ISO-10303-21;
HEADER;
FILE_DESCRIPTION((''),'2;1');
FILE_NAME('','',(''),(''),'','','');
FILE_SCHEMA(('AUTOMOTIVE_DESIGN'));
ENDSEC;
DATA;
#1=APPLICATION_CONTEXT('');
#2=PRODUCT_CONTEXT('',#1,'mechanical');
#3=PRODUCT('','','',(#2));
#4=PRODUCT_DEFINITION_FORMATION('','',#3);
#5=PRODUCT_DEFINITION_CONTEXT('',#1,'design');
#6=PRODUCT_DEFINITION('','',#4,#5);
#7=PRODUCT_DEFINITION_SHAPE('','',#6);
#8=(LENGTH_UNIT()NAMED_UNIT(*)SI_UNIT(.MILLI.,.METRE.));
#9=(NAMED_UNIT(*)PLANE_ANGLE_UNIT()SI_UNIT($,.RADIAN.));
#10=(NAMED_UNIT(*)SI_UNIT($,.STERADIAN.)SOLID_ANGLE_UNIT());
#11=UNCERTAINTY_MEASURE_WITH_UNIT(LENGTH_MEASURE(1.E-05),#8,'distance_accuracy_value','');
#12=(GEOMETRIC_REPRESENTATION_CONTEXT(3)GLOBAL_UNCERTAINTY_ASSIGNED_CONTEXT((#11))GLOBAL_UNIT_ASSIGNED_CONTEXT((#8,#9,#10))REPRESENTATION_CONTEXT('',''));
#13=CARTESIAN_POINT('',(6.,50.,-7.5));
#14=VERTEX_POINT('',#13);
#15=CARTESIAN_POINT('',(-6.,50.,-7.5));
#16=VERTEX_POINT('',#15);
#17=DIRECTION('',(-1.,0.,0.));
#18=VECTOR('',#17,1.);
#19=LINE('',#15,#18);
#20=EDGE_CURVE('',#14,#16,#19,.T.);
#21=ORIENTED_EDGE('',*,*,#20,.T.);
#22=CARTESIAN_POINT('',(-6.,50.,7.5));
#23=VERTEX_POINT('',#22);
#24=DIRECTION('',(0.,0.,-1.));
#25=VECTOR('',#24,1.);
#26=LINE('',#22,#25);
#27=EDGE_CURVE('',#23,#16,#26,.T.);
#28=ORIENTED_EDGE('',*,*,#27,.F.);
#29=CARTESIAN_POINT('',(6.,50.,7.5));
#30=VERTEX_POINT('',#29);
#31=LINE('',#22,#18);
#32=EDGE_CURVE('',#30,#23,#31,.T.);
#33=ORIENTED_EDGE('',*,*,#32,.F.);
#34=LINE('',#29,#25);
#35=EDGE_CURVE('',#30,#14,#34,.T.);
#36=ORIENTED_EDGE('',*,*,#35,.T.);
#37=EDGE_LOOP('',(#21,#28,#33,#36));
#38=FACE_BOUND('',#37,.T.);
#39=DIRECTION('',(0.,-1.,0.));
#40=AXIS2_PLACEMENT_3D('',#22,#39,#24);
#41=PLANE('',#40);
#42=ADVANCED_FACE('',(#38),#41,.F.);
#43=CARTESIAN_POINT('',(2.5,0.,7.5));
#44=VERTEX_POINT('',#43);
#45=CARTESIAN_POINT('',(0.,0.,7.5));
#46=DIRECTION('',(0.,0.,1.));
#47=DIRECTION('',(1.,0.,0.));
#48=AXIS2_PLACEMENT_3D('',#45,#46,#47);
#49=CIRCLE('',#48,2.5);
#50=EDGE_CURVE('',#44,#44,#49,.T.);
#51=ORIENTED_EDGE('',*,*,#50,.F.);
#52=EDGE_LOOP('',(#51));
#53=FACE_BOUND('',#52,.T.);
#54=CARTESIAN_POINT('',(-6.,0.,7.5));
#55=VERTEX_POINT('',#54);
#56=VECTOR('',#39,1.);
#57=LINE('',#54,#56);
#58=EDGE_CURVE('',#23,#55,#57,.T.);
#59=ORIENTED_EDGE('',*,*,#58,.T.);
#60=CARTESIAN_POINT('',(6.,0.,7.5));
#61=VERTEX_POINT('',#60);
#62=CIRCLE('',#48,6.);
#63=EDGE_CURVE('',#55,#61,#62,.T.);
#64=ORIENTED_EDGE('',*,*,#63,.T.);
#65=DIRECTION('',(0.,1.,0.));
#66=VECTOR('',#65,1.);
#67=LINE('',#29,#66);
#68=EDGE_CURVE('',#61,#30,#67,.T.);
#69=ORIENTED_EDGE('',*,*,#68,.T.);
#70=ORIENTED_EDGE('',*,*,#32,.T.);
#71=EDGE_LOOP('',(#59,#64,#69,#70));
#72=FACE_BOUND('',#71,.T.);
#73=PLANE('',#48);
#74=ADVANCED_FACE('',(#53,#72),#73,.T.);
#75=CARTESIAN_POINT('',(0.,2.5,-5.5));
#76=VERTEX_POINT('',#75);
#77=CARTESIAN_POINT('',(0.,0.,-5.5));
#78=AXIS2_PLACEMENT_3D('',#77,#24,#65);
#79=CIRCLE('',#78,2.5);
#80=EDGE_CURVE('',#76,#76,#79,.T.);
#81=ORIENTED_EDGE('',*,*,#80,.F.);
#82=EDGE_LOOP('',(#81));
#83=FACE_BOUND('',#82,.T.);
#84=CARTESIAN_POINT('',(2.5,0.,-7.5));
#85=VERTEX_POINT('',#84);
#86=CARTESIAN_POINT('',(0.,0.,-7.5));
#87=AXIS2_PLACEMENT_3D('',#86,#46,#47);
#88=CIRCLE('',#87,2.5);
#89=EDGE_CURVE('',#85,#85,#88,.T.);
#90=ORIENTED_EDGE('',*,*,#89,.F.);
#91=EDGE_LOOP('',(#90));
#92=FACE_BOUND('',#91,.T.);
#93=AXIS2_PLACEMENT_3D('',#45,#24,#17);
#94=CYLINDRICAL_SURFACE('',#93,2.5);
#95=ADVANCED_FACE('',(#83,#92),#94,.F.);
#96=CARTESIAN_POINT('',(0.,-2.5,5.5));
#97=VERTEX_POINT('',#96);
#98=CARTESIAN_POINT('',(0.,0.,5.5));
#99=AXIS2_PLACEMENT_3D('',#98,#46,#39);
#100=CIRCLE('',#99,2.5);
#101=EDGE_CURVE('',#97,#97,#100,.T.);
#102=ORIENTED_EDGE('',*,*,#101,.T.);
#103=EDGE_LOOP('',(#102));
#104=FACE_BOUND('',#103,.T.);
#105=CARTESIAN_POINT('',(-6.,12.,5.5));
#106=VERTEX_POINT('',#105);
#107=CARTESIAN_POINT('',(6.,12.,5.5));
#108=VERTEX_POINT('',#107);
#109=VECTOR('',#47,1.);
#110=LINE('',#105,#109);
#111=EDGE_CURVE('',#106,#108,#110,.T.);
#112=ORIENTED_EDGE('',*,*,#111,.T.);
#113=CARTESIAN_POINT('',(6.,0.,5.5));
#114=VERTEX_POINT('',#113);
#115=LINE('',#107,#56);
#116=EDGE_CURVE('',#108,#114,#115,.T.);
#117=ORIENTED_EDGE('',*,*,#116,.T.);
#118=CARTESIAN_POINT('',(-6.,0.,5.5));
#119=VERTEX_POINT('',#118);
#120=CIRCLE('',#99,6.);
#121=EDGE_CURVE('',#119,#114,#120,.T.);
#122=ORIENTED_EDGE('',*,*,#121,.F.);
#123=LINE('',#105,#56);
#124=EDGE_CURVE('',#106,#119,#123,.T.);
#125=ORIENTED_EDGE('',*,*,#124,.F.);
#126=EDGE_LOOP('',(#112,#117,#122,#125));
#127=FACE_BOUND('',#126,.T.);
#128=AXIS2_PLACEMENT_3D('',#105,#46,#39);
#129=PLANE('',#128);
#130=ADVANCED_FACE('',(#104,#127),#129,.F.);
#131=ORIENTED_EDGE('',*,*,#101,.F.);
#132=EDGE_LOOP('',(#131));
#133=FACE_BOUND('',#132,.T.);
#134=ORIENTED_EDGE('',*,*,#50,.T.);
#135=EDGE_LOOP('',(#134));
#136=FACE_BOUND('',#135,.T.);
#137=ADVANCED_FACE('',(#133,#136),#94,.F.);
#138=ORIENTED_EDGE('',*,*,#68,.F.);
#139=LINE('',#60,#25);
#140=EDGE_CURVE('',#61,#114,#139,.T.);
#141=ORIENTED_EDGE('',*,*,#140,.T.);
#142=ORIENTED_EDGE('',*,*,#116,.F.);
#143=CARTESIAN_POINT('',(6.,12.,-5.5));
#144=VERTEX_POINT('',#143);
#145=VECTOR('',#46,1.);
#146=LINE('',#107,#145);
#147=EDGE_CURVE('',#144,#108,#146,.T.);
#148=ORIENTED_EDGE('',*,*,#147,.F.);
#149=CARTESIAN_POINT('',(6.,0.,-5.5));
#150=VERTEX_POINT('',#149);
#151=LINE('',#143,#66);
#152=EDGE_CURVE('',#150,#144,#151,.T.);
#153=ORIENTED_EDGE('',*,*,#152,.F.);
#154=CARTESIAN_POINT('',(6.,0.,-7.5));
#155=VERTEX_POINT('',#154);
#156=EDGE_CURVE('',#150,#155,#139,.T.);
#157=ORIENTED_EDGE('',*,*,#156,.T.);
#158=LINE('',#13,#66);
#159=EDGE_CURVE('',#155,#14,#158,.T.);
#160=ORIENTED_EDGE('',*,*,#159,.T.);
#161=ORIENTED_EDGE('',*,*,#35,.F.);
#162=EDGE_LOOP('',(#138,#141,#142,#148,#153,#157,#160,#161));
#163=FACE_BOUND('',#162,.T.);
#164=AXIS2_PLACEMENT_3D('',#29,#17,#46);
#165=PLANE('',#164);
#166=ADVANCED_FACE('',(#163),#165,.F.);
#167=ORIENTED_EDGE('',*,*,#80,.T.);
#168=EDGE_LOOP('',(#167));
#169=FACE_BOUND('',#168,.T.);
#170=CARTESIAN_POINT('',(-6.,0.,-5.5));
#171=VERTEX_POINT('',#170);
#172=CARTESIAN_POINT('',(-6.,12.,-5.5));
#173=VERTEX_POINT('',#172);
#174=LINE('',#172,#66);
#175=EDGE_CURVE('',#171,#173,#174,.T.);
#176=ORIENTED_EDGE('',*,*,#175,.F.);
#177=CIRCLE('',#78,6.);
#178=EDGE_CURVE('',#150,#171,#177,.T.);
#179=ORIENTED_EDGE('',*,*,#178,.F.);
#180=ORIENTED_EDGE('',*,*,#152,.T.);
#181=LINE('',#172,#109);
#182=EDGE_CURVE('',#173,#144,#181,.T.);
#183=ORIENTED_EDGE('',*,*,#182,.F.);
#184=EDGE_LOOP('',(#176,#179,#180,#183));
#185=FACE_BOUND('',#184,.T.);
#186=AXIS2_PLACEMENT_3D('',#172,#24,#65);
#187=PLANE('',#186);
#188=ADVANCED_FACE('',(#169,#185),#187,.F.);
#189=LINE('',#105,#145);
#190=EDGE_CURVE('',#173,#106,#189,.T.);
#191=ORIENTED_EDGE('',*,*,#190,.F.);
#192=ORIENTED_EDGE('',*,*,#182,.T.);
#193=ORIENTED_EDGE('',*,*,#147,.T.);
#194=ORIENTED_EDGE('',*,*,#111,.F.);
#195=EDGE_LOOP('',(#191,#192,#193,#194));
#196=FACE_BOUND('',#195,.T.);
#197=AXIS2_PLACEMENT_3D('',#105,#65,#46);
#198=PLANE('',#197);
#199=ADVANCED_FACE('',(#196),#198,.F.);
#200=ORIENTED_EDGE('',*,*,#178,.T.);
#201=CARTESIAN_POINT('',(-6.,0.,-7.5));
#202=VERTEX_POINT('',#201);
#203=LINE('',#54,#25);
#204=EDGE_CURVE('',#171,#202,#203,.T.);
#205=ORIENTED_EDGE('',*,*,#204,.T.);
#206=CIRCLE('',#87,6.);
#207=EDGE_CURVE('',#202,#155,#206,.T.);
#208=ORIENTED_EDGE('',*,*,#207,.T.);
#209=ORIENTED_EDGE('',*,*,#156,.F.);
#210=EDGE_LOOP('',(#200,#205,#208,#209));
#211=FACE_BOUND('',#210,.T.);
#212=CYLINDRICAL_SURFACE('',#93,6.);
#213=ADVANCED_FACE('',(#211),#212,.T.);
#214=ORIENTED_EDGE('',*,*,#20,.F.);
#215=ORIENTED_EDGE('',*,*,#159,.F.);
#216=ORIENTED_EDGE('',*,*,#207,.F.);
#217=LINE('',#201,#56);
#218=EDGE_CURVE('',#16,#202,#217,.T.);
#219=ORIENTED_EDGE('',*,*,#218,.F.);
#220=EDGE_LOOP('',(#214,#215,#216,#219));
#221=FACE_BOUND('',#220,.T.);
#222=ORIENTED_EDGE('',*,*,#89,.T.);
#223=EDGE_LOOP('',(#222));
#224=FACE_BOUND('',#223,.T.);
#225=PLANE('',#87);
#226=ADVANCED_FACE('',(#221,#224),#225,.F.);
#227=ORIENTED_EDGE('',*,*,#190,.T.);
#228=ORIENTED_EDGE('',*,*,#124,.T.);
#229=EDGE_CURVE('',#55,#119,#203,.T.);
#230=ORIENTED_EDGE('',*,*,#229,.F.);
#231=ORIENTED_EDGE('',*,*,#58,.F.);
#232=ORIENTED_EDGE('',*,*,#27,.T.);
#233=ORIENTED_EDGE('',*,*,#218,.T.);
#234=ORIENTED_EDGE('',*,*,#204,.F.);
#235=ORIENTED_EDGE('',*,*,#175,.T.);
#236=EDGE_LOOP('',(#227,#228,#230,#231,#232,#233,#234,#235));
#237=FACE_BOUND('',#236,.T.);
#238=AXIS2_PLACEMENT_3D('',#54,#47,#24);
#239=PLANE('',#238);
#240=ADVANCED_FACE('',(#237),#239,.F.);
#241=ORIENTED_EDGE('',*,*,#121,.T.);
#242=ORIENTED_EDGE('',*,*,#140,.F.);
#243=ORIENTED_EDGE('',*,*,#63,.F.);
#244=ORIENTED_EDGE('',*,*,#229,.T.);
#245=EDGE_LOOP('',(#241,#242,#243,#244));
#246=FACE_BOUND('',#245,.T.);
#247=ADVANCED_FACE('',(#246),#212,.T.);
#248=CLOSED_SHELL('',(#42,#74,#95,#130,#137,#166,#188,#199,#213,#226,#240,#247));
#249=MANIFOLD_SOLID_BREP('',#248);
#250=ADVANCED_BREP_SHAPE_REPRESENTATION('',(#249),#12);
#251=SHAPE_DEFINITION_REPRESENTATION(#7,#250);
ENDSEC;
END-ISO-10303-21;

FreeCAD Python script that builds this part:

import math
import FreeCAD as App
import Part
import Sketcher

V = App.Vector

doc = App.newDocument("Part")
body = doc.addObject("PartDesign::Body", "Body")

sketch1 = body.newObject("Sketcher::SketchObject", "Sketch")
sketch1.AttachmentSupport = (doc.getObject("XY_Plane"), [""])
sketch1.MapMode = "FlatFace"
sketch1.addGeometry([
    Part.LineSegment(V(-6, 50, 0), V(-6, 0, 0)),
    Part.ArcOfCircle(Part.Circle(V(0, 0, 0), V(0, 0, 1), 6), math.radians(180), math.radians(360)),
    Part.LineSegment(V(6, 0, 0), V(6, 50, 0)),
    Part.LineSegment(V(6, 50, 0), V(-6, 50, 0)),
    Part.Circle(V(0, 0, 0), V(0, 0, 1), 2.5),
], False)
sketch1.addConstraint([
    Sketcher.Constraint("Tangent", 0, 2, 1, 1),
    Sketcher.Constraint("Tangent", 1, 2, 2, 1),
    Sketcher.Constraint("Coincident", 2, 2, 3, 1),
    Sketcher.Constraint("Coincident", 3, 2, 0, 1),
    Sketcher.Constraint("Vertical", 0),
    Sketcher.Constraint("Vertical", 2),
    Sketcher.Constraint("Horizontal", 3),
    Sketcher.Constraint("Coincident", 1, 3, -1, 1),
    Sketcher.Constraint("Coincident", 4, 3, -1, 1),
    Sketcher.Constraint("Diameter", 4, 5.0),
    Sketcher.Constraint("Radius", 1, 6.0),
    Sketcher.Constraint("DistanceY", 0, 2, 0, 1, 50.0),
])
pad1 = body.newObject("PartDesign::Pad", "Pad")
pad1.Profile = sketch1
pad1.Length = 15
pad1.Midplane = True

sketch2 = body.newObject("Sketcher::SketchObject", "Sketch001")
sketch2.AttachmentSupport = (doc.getObject("YZ_Plane"), [""])
sketch2.MapMode = "FlatFace"
sketch2.addGeometry([
    Part.LineSegment(V(12, 6, 0), V(-23, 6, 0)),
    Part.LineSegment(V(-23, 6, 0), V(-23, -6, 0)),
    Part.LineSegment(V(-23, -6, 0), V(12, -6, 0)),
    Part.LineSegment(V(12, -6, 0), V(12, 6, 0)),
], False)
sketch2.addConstraint([
    Sketcher.Constraint("Coincident", 0, 2, 1, 1),
    Sketcher.Constraint("Coincident", 1, 2, 2, 1),
    Sketcher.Constraint("Coincident", 2, 2, 3, 1),
    Sketcher.Constraint("Coincident", 3, 2, 0, 1),
    Sketcher.Constraint("Horizontal", 0),
    Sketcher.Constraint("Vertical", 1),
    Sketcher.Constraint("Horizontal", 2),
    Sketcher.Constraint("Vertical", 3),
    Sketcher.Constraint("DistanceY", 1, 2, 1, 1, 11.0),
    Sketcher.Constraint("DistanceX", -1, 1, 2, 2, 12.0),
    Sketcher.Constraint("DistanceY", -1, 1, 0, 2, 5.5),
    Sketcher.Constraint("DistanceX", 0, 2, 0, 1, 34.501139),
])
pocket1 = body.newObject("PartDesign::Pocket", "Pocket")
pocket1.Profile = sketch2
pocket1.Type = "ThroughAll"
pocket1.Midplane = True

doc.recompute()
